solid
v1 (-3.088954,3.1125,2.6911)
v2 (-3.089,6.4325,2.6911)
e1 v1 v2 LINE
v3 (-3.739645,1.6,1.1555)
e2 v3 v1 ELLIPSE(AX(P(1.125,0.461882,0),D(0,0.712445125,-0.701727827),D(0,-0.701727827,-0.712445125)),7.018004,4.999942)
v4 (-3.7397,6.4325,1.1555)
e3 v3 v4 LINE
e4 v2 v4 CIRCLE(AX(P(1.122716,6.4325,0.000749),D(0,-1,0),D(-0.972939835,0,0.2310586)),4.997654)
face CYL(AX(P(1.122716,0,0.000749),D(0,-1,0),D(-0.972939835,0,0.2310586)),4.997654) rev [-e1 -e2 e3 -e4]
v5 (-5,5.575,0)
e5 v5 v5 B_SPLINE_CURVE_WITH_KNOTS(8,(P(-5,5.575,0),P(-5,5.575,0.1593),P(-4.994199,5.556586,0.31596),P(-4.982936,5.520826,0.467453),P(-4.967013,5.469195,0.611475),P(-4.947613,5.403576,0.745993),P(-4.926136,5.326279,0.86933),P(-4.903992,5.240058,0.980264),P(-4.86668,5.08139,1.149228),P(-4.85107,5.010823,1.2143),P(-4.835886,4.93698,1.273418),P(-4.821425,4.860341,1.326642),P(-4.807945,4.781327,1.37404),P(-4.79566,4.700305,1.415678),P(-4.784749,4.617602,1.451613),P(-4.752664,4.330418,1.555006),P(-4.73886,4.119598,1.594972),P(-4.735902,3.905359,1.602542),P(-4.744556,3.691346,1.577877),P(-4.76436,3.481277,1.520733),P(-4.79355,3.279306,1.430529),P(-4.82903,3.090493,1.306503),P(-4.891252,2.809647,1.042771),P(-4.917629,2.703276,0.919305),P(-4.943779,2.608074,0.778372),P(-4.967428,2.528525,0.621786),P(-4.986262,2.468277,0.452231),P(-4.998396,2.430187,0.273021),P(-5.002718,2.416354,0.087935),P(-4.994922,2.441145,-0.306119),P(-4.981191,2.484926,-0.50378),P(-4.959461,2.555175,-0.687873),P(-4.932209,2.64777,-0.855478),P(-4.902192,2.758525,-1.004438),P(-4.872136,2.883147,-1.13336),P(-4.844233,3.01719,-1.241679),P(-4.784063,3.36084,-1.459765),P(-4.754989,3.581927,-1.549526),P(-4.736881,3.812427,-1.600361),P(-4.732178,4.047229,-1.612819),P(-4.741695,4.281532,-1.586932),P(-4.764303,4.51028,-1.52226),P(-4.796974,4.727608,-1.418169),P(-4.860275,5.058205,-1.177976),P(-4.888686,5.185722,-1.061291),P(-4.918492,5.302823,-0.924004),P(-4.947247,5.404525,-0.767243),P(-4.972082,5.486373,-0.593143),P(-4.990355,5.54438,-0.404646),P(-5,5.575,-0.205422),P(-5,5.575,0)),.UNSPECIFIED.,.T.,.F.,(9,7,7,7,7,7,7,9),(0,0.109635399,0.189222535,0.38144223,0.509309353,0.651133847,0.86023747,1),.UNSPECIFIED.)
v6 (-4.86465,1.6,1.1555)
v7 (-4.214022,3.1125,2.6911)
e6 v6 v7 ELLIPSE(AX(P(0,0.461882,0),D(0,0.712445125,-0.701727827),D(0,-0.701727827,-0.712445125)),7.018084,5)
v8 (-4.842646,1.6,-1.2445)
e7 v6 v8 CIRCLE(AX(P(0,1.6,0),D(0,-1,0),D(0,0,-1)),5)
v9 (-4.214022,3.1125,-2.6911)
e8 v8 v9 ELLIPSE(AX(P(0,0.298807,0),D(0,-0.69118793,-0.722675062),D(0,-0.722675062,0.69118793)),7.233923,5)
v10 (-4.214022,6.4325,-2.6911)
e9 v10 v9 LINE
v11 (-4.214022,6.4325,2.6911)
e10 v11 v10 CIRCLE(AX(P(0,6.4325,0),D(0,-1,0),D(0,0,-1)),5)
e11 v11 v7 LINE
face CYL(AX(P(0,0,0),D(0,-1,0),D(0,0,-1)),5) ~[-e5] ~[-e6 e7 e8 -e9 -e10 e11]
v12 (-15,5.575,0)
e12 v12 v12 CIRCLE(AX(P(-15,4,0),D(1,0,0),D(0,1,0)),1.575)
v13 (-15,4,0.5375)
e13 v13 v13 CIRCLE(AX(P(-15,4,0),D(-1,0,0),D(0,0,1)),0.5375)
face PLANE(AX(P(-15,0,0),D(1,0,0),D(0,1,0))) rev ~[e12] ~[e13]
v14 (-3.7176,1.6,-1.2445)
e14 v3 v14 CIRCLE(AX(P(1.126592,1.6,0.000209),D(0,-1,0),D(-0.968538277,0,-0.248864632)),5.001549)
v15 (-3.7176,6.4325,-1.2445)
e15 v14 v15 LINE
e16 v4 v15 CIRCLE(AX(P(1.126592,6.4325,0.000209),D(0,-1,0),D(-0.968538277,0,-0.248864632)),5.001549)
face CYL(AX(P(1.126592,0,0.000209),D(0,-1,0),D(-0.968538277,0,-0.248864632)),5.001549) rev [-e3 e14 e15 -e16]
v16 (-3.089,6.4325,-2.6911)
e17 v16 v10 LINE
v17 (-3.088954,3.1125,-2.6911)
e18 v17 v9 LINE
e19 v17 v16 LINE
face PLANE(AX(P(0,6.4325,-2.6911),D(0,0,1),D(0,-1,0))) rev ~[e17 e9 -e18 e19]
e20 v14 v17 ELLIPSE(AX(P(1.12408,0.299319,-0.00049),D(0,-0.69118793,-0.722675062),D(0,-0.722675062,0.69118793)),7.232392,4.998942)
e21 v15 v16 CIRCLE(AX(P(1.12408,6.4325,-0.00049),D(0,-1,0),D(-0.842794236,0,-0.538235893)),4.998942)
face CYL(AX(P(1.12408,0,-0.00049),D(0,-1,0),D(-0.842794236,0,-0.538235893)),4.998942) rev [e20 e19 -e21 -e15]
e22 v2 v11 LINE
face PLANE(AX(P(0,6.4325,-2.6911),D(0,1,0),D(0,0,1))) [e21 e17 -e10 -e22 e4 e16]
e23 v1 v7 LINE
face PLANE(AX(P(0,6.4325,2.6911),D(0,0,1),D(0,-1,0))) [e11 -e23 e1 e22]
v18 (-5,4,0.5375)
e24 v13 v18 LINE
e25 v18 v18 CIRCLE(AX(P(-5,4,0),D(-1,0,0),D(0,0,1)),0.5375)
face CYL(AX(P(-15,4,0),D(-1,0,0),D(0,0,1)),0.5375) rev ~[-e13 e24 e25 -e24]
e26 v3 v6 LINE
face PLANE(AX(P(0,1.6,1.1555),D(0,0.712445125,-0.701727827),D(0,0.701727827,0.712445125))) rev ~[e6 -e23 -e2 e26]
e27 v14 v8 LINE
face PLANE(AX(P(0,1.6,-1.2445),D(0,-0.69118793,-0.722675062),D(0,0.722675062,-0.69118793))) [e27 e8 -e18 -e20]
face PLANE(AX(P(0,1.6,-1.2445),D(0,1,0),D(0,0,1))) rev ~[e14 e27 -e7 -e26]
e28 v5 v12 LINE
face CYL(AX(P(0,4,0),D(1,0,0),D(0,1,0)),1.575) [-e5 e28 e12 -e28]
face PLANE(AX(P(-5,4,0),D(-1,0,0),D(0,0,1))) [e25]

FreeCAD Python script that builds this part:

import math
import FreeCAD as App
import Part
import Sketcher
from FreeCAD import Vector
Q = App.Units.Quantity


def add_polygon(sketch, points):
    """Adds a closed chain of lines whose ends are joined by coincident constraints."""
    first, n = sketch.GeometryCount, len(points)
    for a, b in zip(points, points[1:] + points[:1]):
        sketch.addGeometry(Part.LineSegment(App.Vector(*a, 0), App.Vector(*b, 0)), False)
    for i in range(n):
        sketch.addConstraint(Sketcher.Constraint("Coincident", first + i, 2, first + (i + 1) % n, 1))

doc = App.newDocument("Part")
body = doc.addObject("PartDesign::Body", "Body")

sketch1 = doc.addObject("Sketcher::SketchObject", "Sketch")
body.addObject(sketch1)
sketch1.AttachmentSupport = (doc.XZ_Plane, [""])
sketch1.MapMode = "FlatFace"
sketch1.addGeometry(Part.LineSegment(Vector(0, 5, 0), Vector(0, -5, 0)), False)
sketch1.addGeometry(Part.ArcOfCircle(Part.Circle(Vector(0, 0, 0), Vector(0, 0, 1), 5), math.radians(90), math.radians(270)), False)
sketch1.addConstraint(Sketcher.Constraint("Coincident", 0, 1, 1, 1))
sketch1.addConstraint(Sketcher.Constraint("Coincident", 1, 2, 0, 2))
sketch1.addConstraint(Sketcher.Constraint("Vertical", 0))
sketch1.addConstraint(Sketcher.Constraint("Coincident", 1, 3, -1, 1))
sketch1.addConstraint(Sketcher.Constraint("PointOnObject", 0, 1, -2))
sketch1.addConstraint(Sketcher.Constraint("Radius", 1, 5.0))
pad1 = doc.addObject("PartDesign::Pad", "Pad")
body.addObject(pad1)
pad1.Profile = sketch1
pad1.Length = 10
pad1.Reversed = True

sketch2 = doc.addObject("Sketcher::SketchObject", "Sketch001")
body.addObject(sketch2)
sketch2.AttachmentSupport = (doc.YZ_Plane, [""])
sketch2.MapMode = "FlatFace"
sketch2.addGeometry(Part.ArcOfCircle(Part.Circle(Vector(1, 4, 0), Vector(0, 0, 1), 2.236068), math.radians(26.565051), math.radians(243.434949)), False)
sketch2.addGeometry(Part.LineSegment(Vector(0, 2, 0), Vector(2.4911, 4.4911, 0)), False)
sketch2.addGeometry(Part.LineSegment(Vector(2.4911, 4.4911, 0), Vector(8.0325, 4.4911, 0)), False)
sketch2.addGeometry(Part.LineSegment(Vector(8.0325, 4.4911, 0), Vector(8.0325, -4.4911, 0)), False)
sketch2.addGeometry(Part.LineSegment(Vector(8.0325, -4.4911, 0), Vector(2.4911, -4.4911, 0)), False)
sketch2.addGeometry(Part.LineSegment(Vector(2.4911, -4.4911, 0), Vector(0, -2, 0)), False)
sketch2.addGeometry(Part.ArcOfCircle(Part.Circle(Vector(1.75, -4.25, 0), Vector(0, 0, 1), 2.850439), math.radians(127.874984), math.radians(260.385326)), False)
sketch2.addGeometry(Part.ArcOfCircle(Part.Circle(Vector(5.5309, -7.5041, 0), Vector(0, 0, 1), 4.280018), math.radians(174.04961), math.radians(380.5748)), False)
sketch2.addGeometry(Part.LineSegment(Vector(9.537843, -6, 0), Vector(11, -6, 0)), False)
sketch2.addGeometry(Part.LineSegment(Vector(11, -6, 0), Vector(11, 5, 0)), False)
sketch2.addGeometry(Part.LineSegment(Vector(11, 5, 0), Vector(8.636781, 5, 0)), False)
sketch2.addGeometry(Part.ArcOfCircle(Part.Circle(Vector(7, 6.3303, 0), Vector(0, 0, 1), 2.109197), math.radians(-39.10262), math.radians(161.486878)), False)
sketch2.addGeometry(Part.LineSegment(Vector(5, 7, 0), Vector(3, 5, 0)), False)
sketch2.addConstraint(Sketcher.Constraint("Coincident", 0, 2, 1, 1))
sketch2.addConstraint(Sketcher.Constraint("Coincident", 1, 2, 2, 1))
sketch2.addConstraint(Sketcher.Constraint("Coincident", 2, 2, 3, 1))
sketch2.addConstraint(Sketcher.Constraint("Coincident", 3, 2, 4, 1))
sketch2.addConstraint(Sketcher.Constraint("Coincident", 4, 2, 5, 1))
sketch2.addConstraint(Sketcher.Constraint("Coincident", 5, 2, 6, 1))
sketch2.addConstraint(Sketcher.Constraint("Coincident", 6, 2, 7, 1))
sketch2.addConstraint(Sketcher.Constraint("Coincident", 7, 2, 8, 1))
sketch2.addConstraint(Sketcher.Constraint("Coincident", 8, 2, 9, 1))
sketch2.addConstraint(Sketcher.Constraint("Coincident", 9, 2, 10, 1))
sketch2.addConstraint(Sketcher.Constraint("Coincident", 10, 2, 11, 1))
sketch2.addConstraint(Sketcher.Constraint("Coincident", 11, 2, 12, 1))
sketch2.addConstraint(Sketcher.Constraint("Coincident", 12, 2, 0, 1))
sketch2.addConstraint(Sketcher.Constraint("Horizontal", 2))
sketch2.addConstraint(Sketcher.Constraint("Vertical", 3))
sketch2.addConstraint(Sketcher.Constraint("Horizontal", 4))
sketch2.addConstraint(Sketcher.Constraint("Horizontal", 8))
sketch2.addConstraint(Sketcher.Constraint("Vertical", 9))
sketch2.addConstraint(Sketcher.Constraint("Horizontal", 10))
sketch2.addConstraint(Sketcher.Constraint("Symmetric", 0, 2, 5, 2, -1, 1))
sketch2.addConstraint(Sketcher.Constraint("Symmetric", 1, 2, 4, 2, -1))
sketch2.addConstraint(Sketcher.Constraint("PointOnObject", 0, 2, -2))
sketch2.addConstraint(Sketcher.Constraint("Perpendicular", 1, 5))
sketch2.addConstraint(Sketcher.Constraint("Perpendicular", 5, 12))
sketch2.addConstraint(Sketcher.Constraint("Horizontal", 10, 2, 12, 2))
sketch2.addConstraint(Sketcher.Constraint("DistanceY", 9, 1, 9, 2, 11.0))
sketch2.addConstraint(Sketcher.Constraint("Radius", 7, 4.28))
sketch2.addConstraint(Sketcher.Constraint("DistanceX", -1, 1, 0, 3, 1.0))
sketch2.addConstraint(Sketcher.Constraint("DistanceY", -1, 1, 0, 3, 4.0))
sketch2.addConstraint(Sketcher.Constraint("DistanceX", -1, 1, 11, 3, 7.0))
sketch2.addConstraint(Sketcher.Constraint("DistanceY", -1, 1, 0, 2, 2.0))
sketch2.addConstraint(Sketcher.Constraint("DistanceY", 7, 2, -1, 1, 6.0))
sketch2.addConstraint(Sketcher.Constraint("DistanceX", -1, 1, 8, 2, 11.0))
sketch2.addConstraint(Sketcher.Constraint("DistanceX", -1, 1, 11, 2, 5.0))
sketch2.addConstraint(Sketcher.Constraint("Radius", 6, 2.8504))
sketch2.addConstraint(Sketcher.Constraint("Radius", 11, 2.1092))
sketch2.addConstraint(Sketcher.Constraint("DistanceX", -1, 1, 6, 3, 1.75))
sketch2.addConstraint(Sketcher.Constraint("Distance", 1, 3.523))
sketch2.addConstraint(Sketcher.Constraint("DistanceX", 2, 1, 2, 2, 5.5414))
sketch2.addConstraint(Sketcher.Constraint("DistanceX", 8, 1, 8, 2, 1.4622))
sketch2.addConstraint(Sketcher.Constraint("DistanceX", -1, 1, 7, 3, 5.531))
pocket1 = doc.addObject("PartDesign::Pocket", "Pocket")
body.addObject(pocket1)
pocket1.Profile = sketch2
pocket1.Type = "ThroughAll"

sketch3 = doc.addObject("Sketcher::SketchObject", "Sketch002")
body.addObject(sketch3)
sketch3.AttachmentSupport = (doc.XZ_Plane, [""])
sketch3.MapMode = "FlatFace"
sketch3.addGeometry(Part.ArcOfCircle(Part.Circle(Vector(0.4517, 0, 0), Vector(0, 0, 1), 4.742728), math.radians(-108.747449), math.radians(108.747449)), False)
sketch3.addGeometry(Part.ArcOfCircle(Part.Circle(Vector(1.125, 0, 0), Vector(0, 0, 1), 4.999942), math.radians(116.073582), math.radians(243.926418)), False)
sketch3.addConstraint(Sketcher.Constraint("Coincident", 0, 1, 1, 2))
sketch3.addConstraint(Sketcher.Constraint("Coincident", 1, 1, 0, 2))
sketch3.addConstraint(Sketcher.Constraint("Symmetric", 0, 1, 1, 1, -1))
sketch3.addConstraint(Sketcher.Constraint("Radius", 1, 5.0))
sketch3.addConstraint(Sketcher.Constraint("DistanceX", -1, 1, 1, 3, 1.125))
sketch3.addConstraint(Sketcher.Constraint("Radius", 0, 4.7427))
sketch3.addConstraint(Sketcher.Constraint("DistanceY", 0, 1, -1, 1, 4.491))
pocket2 = doc.addObject("PartDesign::Pocket", "Pocket001")
body.addObject(pocket2)
pocket2.Profile = sketch3
pocket2.Type = "ThroughAll"

sketch4 = doc.addObject("Sketcher::SketchObject", "Sketch003")
body.addObject(sketch4)
sketch4.AttachmentSupport = (doc.YZ_Plane, [""])
sketch4.MapMode = "FlatFace"
sketch4.addGeometry(Part.ArcOfCircle(Part.Circle(Vector(3.2437, -0.3622, 0), Vector(0, 0, 1), 5.282344), math.radians(108.129676), math.radians(251.870324)), False)
sketch4.addGeometry(Part.LineSegment(Vector(1.6, -5.3823, 0), Vector(1.6, -8.2222, 0)), False)
sketch4.addGeometry(Part.ArcOfCircle(Part.Circle(Vector(2.6381, -8.1801, 0), Vector(0, 0, 1), 1.038953), math.radians(-177.67765), math.radians(-57.611711)), False)
sketch4.addGeometry(Part.LineSegment(Vector(3.194665, -9.057399, 0), Vector(3.2437, -12.8567, 0)), False)
sketch4.addGeometry(Part.ArcOfCircle(Part.Circle(Vector(5.6123, -11.8169, 0), Vector(0, 0, 1), 2.586784), math.radians(-156.298838), math.radians(71.51392)), False)
sketch4.addGeometry(Part.ArcOfCircle(Part.Circle(Vector(6.37, -1.1482, 0), Vector(0, 0, 1), 8.215638), math.radians(-89.564121), math.radians(27.860435)), False)
sketch4.addGeometry(Part.LineSegment(Vector(13.6333, 2.6911, 0), Vector(12.4034, 2.6911, 0)), False)
sketch4.addGeometry(Part.ArcOfCircle(Part.Circle(Vector(8.3272, 3.9364, 0), Vector(0, 0, 1), 4.26218), math.radians(-16.988181), math.radians(87.248496)), False)
sketch4.addGeometry(Part.LineSegment(Vector(8.5318, 8.1936, 0), Vector(5.475709, 5.090591, 0)), False)
sketch4.addGeometry(Part.ArcOfCircle(Part.Circle(Vector(3.8837, 6.8794, 0), Vector(0, 0, 1), 2.394633), math.radians(-48.331489), math.radians(162.489682)), False)
sketch4.addGeometry(Part.LineSegment(Vector(1.6, 7.5999, 0), Vector(1.6, 4.6579, 0)), False)
add_polygon(sketch4, [(1.6, -1.2445), (1.6, 1.1555), (3.1125, 2.6911), (6.4325, 2.6911), (6.4325, -2.6911), (3.1125, -2.6911)])
sketch4.addConstraint(Sketcher.Constraint("Coincident", 0, 2, 1, 1))
sketch4.addConstraint(Sketcher.Constraint("Coincident", 1, 2, 2, 1))
sketch4.addConstraint(Sketcher.Constraint("Coincident", 2, 2, 3, 1))
sketch4.addConstraint(Sketcher.Constraint("Coincident", 3, 2, 4, 1))
sketch4.addConstraint(Sketcher.Constraint("Coincident", 4, 2, 5, 1))
sketch4.addConstraint(Sketcher.Constraint("Coincident", 5, 2, 6, 1))
sketch4.addConstraint(Sketcher.Constraint("Coincident", 6, 2, 7, 1))
sketch4.addConstraint(Sketcher.Constraint("Coincident", 7, 2, 8, 1))
sketch4.addConstraint(Sketcher.Constraint("Coincident", 8, 2, 9, 1))
sketch4.addConstraint(Sketcher.Constraint("Coincident", 9, 2, 10, 1))
sketch4.addConstraint(Sketcher.Constraint("Coincident", 10, 2, 0, 1))
sketch4.addConstraint(Sketcher.Constraint("Vertical", 1))
sketch4.addConstraint(Sketcher.Constraint("Horizontal", 6))
sketch4.addConstraint(Sketcher.Constraint("Vertical", 10))
sketch4.addConstraint(Sketcher.Constraint("Vertical", 11))
sketch4.addConstraint(Sketcher.Constraint("Horizontal", 13))
sketch4.addConstraint(Sketcher.Constraint("Vertical", 14))
sketch4.addConstraint(Sketcher.Constraint("Horizontal", 15))
sketch4.addConstraint(Sketcher.Constraint("Symmetric", 12, 2, 15, 2, -1))
sketch4.addConstraint(Sketcher.Constraint("Parallel", 8, 12))
sketch4.addConstraint(Sketcher.Constraint("Horizontal", 6, 2, 12, 2))
sketch4.addConstraint(Sketcher.Constraint("Vertical", 0, 3, 3, 2))
sketch4.addConstraint(Sketcher.Constraint("Vertical", 1, 2, 9, 2))
sketch4.addConstraint(Sketcher.Constraint("Vertical", 10, 2, 11, 2))
sketch4.addConstraint(Sketcher.Constraint("Vertical", 4, 2, 13, 2))
sketch4.addConstraint(Sketcher.Constraint("DistanceY", 11, 1, 11, 2, 2.4))
sketch4.addConstraint(Sketcher.Constraint("DistanceX", 13, 1, 13, 2, 3.32))
sketch4.addConstraint(Sketcher.Constraint("DistanceX", -1, 1, 0, 2, 1.6))
sketch4.addConstraint(Sketcher.Constraint("Radius", 2, 1.039))
sketch4.addConstraint(Sketcher.Constraint("DistanceX", 6, 2, 6, 1, 1.23))
sketch4.addConstraint(Sketcher.Constraint("DistanceY", 1, 2, 1, 1, 2.84))
sketch4.addConstraint(Sketcher.Constraint("DistanceY", -1, 1, 9, 2, 7.6))
sketch4.addConstraint(Sketcher.Constraint("Angle", 3, Q("-89.2606 deg")))
sketch4.addConstraint(Sketcher.Constraint("Radius", 0, 5.2823))
sketch4.addConstraint(Sketcher.Constraint("Radius", 4, 2.5868))
sketch4.addConstraint(Sketcher.Constraint("Radius", 5, 8.2156))
sketch4.addConstraint(Sketcher.Constraint("Radius", 7, 4.2622))
sketch4.addConstraint(Sketcher.Constraint("Radius", 9, 2.3946))
sketch4.addConstraint(Sketcher.Constraint("DistanceY", 12, 2, 8, 2, 2.3995))
sketch4.addConstraint(Sketcher.Constraint("DistanceY", 10, 2, 10, 1, 2.942))
sketch4.addConstraint(Sketcher.Constraint("DistanceY", 2, 3, -1, 1, 8.18))
sketch4.addConstraint(Sketcher.Constraint("DistanceX", -1, 1, 5, 3, 6.37))
sketch4.addConstraint(Sketcher.Constraint("DistanceX", 0, 3, 9, 3, 0.64))
sketch4.addConstraint(Sketcher.Constraint("DistanceY", 0, 2, 0, 3, 5.02))
sketch4.addConstraint(Sketcher.Constraint("Distance", 16, 2.093))
sketch4.addConstraint(Sketcher.Constraint("DistanceY", 14, 2, 14, 1, 5.3822))
sketch4.addConstraint(Sketcher.Constraint("DistanceY", 4, 3, -1, 1, 11.817))
sketch4.addConstraint(Sketcher.Constraint("DistanceY", 5, 3, 0, 3, 0.786))
sketch4.addConstraint(Sketcher.Constraint("DistanceX", 2, 3, 7, 3, 5.689))
sketch4.addConstraint(Sketcher.Constraint("DistanceX", 4, 3, 7, 3, 2.715))
pocket3 = doc.addObject("PartDesign::Pocket", "Pocket002")
body.addObject(pocket3)
pocket3.Profile = sketch4
pocket3.Type = "ThroughAll"

sketch5 = doc.addObject("Sketcher::SketchObject", "Sketch004")
body.addObject(sketch5)
sketch5.AttachmentSupport = (doc.YZ_Plane, [""])
sketch5.MapMode = "FlatFace"
sketch5.addGeometry(Part.Circle(Vector(4, 0, 0), Vector(0, 0, 1), 1.575), False)
sketch5.addConstraint(Sketcher.Constraint("PointOnObject", 0, 3, -1))
sketch5.addConstraint(Sketcher.Constraint("Diameter", 0, 3.15))
sketch5.addConstraint(Sketcher.Constraint("DistanceX", -1, 1, 0, 3, 4.0))
pad2 = doc.addObject("PartDesign::Pad", "Pad001")
body.addObject(pad2)
pad2.Profile = sketch5
pad2.Length = 15
pad2.Reversed = True

sketch6 = doc.addObject("Sketcher::SketchObject", "Sketch005")
body.addObject(sketch6)
sketch6.AttachmentSupport = (doc.XZ_Plane, [""])
sketch6.MapMode = "FlatFace"
sketch6.addGeometry(Part.ArcOfCircle(Part.Circle(Vector(-1.8078, 0, 0), Vector(0, 0, 1), 2.980519), math.radians(-115.458551), math.radians(115.458551)), False)
sketch6.addGeometry(Part.ArcOfCircle(Part.Circle(Vector(1.12408, -0.00049, 0), Vector(0, 0, 1), 4.998942), math.radians(-165.590252), math.radians(-147.436371)), False)
sketch6.addGeometry(Part.ArcOfCircle(Part.Circle(Vector(1.126592, 0.000209, 0), Vector(0, 0, 1), 5.001549), math.radians(166.64483), math.radians(194.410337)), False)
sketch6.addGeometry(Part.ArcOfCircle(Part.Circle(Vector(1.122716, 0.000749, 0), Vector(0, 0, 1), 4.997654), math.radians(147.430464), math.radians(166.640596)), False)
sketch6.addConstraint(Sketcher.Constraint("Coincident", 0, 1, 1, 2))
sketch6.addConstraint(Sketcher.Constraint("Tangent", 1, 1, 2, 2))
sketch6.addConstraint(Sketcher.Constraint("Tangent", 2, 1, 3, 2))
sketch6.addConstraint(Sketcher.Constraint("Coincident", 3, 1, 0, 2))
sketch6.addConstraint(Sketcher.Constraint("Symmetric", 0, 1, 3, 1, -1))
sketch6.addConstraint(Sketcher.Constraint("Radius", 1, 4.999))
sketch6.addConstraint(Sketcher.Constraint("Radius", 0, 2.9805))
sketch6.addConstraint(Sketcher.Constraint("Radius", 2, 5.0015))
sketch6.addConstraint(Sketcher.Constraint("Radius", 3, 4.9977))
sketch6.addConstraint(Sketcher.Constraint("DistanceY", 1, 1, 2, 1, 2.4))
sketch6.addConstraint(Sketcher.Constraint("DistanceX", -1, 1, 1, 3, 1.124))
sketch6.addConstraint(Sketcher.Constraint("DistanceX", 0, 1, -1, 1, 3.089))
sketch6.addConstraint(Sketcher.Constraint("DistanceY", 1, 1, 1, 3, 1.244))
pocket4 = doc.addObject("PartDesign::Pocket", "Pocket003")
body.addObject(pocket4)
pocket4.Profile = sketch6
pocket4.Type = "ThroughAll"

sketch7 = doc.addObject("Sketcher::SketchObject", "Sketch006")
body.addObject(sketch7)
sketch7.AttachmentSupport = (doc.YZ_Plane, [""])
sketch7.MapMode = "FlatFace"
sketch7.AttachmentOffset = App.Placement(Vector(0, 0, -15), App.Rotation())
sketch7.addGeometry(Part.Circle(Vector(4, 0, 0), Vector(0, 0, 1), 0.5375), False)
sketch7.addConstraint(Sketcher.Constraint("PointOnObject", 0, 3, -1))
sketch7.addConstraint(Sketcher.Constraint("Diameter", 0, 1.075))
sketch7.addConstraint(Sketcher.Constraint("DistanceX", -1, 1, 0, 3, 4.0))
pocket5 = doc.addObject("PartDesign::Pocket", "Pocket004")
body.addObject(pocket5)
pocket5.Profile = sketch7
pocket5.Length = 10
pocket5.Reversed = True

doc.recompute()
